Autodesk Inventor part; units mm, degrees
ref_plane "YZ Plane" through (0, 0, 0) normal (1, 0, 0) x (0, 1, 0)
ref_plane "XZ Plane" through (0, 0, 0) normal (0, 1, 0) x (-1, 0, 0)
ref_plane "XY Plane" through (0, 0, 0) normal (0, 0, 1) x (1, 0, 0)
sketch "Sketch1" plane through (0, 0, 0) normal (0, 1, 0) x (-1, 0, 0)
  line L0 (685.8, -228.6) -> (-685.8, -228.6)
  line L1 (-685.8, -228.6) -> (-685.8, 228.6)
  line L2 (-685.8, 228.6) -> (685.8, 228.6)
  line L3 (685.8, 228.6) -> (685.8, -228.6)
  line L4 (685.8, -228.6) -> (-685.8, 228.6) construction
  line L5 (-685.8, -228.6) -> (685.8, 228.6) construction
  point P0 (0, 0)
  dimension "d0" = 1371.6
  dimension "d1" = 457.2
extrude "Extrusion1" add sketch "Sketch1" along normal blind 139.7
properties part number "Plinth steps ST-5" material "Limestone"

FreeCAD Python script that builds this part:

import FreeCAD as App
import Part
import Sketcher
from FreeCAD import Vector
Q = App.Units.Quantity


def add_polygon(sketch, points):
    """Adds a closed chain of lines whose ends are joined by coincident constraints."""
    first, n = sketch.GeometryCount, len(points)
    for a, b in zip(points, points[1:] + points[:1]):
        sketch.addGeometry(Part.LineSegment(App.Vector(*a, 0), App.Vector(*b, 0)), False)
    for i in range(n):
        sketch.addConstraint(Sketcher.Constraint("Coincident", first + i, 2, first + (i + 1) % n, 1))

doc = App.newDocument("Part")
body = doc.addObject("PartDesign::Body", "Body")

# Sketch on XZ plane
sketch1 = body.newObject("Sketcher::SketchObject", "Sketch")
sketch1.AttachmentSupport = (doc.getObject("XZ_Plane"), [""])
sketch1.MapMode = "FlatFace"
add_polygon(sketch1, [(686, -229), (-686, -229), (-686, 229), (686, 229)])  # lines 0-3
sketch1.addConstraint([
    Sketcher.Constraint("Horizontal", 0),
    Sketcher.Constraint("Vertical", 1),
    Sketcher.Constraint("Horizontal", 2),
    Sketcher.Constraint("Vertical", 3),
    Sketcher.Constraint("Symmetric", 0, 2, 2, 2, -1, 1),
    Sketcher.Constraint("DistanceX", 0, 2, 0, 1, Q("54 in")),
    Sketcher.Constraint("DistanceY", 1, 1, 1, 2, Q("18 in")),
])
pad1 = body.newObject("PartDesign::Pad", "Pad")
pad1.Profile = sketch1
pad1.Length = Q("5.5 in")
pad1.Reversed = True

doc.recompute()
